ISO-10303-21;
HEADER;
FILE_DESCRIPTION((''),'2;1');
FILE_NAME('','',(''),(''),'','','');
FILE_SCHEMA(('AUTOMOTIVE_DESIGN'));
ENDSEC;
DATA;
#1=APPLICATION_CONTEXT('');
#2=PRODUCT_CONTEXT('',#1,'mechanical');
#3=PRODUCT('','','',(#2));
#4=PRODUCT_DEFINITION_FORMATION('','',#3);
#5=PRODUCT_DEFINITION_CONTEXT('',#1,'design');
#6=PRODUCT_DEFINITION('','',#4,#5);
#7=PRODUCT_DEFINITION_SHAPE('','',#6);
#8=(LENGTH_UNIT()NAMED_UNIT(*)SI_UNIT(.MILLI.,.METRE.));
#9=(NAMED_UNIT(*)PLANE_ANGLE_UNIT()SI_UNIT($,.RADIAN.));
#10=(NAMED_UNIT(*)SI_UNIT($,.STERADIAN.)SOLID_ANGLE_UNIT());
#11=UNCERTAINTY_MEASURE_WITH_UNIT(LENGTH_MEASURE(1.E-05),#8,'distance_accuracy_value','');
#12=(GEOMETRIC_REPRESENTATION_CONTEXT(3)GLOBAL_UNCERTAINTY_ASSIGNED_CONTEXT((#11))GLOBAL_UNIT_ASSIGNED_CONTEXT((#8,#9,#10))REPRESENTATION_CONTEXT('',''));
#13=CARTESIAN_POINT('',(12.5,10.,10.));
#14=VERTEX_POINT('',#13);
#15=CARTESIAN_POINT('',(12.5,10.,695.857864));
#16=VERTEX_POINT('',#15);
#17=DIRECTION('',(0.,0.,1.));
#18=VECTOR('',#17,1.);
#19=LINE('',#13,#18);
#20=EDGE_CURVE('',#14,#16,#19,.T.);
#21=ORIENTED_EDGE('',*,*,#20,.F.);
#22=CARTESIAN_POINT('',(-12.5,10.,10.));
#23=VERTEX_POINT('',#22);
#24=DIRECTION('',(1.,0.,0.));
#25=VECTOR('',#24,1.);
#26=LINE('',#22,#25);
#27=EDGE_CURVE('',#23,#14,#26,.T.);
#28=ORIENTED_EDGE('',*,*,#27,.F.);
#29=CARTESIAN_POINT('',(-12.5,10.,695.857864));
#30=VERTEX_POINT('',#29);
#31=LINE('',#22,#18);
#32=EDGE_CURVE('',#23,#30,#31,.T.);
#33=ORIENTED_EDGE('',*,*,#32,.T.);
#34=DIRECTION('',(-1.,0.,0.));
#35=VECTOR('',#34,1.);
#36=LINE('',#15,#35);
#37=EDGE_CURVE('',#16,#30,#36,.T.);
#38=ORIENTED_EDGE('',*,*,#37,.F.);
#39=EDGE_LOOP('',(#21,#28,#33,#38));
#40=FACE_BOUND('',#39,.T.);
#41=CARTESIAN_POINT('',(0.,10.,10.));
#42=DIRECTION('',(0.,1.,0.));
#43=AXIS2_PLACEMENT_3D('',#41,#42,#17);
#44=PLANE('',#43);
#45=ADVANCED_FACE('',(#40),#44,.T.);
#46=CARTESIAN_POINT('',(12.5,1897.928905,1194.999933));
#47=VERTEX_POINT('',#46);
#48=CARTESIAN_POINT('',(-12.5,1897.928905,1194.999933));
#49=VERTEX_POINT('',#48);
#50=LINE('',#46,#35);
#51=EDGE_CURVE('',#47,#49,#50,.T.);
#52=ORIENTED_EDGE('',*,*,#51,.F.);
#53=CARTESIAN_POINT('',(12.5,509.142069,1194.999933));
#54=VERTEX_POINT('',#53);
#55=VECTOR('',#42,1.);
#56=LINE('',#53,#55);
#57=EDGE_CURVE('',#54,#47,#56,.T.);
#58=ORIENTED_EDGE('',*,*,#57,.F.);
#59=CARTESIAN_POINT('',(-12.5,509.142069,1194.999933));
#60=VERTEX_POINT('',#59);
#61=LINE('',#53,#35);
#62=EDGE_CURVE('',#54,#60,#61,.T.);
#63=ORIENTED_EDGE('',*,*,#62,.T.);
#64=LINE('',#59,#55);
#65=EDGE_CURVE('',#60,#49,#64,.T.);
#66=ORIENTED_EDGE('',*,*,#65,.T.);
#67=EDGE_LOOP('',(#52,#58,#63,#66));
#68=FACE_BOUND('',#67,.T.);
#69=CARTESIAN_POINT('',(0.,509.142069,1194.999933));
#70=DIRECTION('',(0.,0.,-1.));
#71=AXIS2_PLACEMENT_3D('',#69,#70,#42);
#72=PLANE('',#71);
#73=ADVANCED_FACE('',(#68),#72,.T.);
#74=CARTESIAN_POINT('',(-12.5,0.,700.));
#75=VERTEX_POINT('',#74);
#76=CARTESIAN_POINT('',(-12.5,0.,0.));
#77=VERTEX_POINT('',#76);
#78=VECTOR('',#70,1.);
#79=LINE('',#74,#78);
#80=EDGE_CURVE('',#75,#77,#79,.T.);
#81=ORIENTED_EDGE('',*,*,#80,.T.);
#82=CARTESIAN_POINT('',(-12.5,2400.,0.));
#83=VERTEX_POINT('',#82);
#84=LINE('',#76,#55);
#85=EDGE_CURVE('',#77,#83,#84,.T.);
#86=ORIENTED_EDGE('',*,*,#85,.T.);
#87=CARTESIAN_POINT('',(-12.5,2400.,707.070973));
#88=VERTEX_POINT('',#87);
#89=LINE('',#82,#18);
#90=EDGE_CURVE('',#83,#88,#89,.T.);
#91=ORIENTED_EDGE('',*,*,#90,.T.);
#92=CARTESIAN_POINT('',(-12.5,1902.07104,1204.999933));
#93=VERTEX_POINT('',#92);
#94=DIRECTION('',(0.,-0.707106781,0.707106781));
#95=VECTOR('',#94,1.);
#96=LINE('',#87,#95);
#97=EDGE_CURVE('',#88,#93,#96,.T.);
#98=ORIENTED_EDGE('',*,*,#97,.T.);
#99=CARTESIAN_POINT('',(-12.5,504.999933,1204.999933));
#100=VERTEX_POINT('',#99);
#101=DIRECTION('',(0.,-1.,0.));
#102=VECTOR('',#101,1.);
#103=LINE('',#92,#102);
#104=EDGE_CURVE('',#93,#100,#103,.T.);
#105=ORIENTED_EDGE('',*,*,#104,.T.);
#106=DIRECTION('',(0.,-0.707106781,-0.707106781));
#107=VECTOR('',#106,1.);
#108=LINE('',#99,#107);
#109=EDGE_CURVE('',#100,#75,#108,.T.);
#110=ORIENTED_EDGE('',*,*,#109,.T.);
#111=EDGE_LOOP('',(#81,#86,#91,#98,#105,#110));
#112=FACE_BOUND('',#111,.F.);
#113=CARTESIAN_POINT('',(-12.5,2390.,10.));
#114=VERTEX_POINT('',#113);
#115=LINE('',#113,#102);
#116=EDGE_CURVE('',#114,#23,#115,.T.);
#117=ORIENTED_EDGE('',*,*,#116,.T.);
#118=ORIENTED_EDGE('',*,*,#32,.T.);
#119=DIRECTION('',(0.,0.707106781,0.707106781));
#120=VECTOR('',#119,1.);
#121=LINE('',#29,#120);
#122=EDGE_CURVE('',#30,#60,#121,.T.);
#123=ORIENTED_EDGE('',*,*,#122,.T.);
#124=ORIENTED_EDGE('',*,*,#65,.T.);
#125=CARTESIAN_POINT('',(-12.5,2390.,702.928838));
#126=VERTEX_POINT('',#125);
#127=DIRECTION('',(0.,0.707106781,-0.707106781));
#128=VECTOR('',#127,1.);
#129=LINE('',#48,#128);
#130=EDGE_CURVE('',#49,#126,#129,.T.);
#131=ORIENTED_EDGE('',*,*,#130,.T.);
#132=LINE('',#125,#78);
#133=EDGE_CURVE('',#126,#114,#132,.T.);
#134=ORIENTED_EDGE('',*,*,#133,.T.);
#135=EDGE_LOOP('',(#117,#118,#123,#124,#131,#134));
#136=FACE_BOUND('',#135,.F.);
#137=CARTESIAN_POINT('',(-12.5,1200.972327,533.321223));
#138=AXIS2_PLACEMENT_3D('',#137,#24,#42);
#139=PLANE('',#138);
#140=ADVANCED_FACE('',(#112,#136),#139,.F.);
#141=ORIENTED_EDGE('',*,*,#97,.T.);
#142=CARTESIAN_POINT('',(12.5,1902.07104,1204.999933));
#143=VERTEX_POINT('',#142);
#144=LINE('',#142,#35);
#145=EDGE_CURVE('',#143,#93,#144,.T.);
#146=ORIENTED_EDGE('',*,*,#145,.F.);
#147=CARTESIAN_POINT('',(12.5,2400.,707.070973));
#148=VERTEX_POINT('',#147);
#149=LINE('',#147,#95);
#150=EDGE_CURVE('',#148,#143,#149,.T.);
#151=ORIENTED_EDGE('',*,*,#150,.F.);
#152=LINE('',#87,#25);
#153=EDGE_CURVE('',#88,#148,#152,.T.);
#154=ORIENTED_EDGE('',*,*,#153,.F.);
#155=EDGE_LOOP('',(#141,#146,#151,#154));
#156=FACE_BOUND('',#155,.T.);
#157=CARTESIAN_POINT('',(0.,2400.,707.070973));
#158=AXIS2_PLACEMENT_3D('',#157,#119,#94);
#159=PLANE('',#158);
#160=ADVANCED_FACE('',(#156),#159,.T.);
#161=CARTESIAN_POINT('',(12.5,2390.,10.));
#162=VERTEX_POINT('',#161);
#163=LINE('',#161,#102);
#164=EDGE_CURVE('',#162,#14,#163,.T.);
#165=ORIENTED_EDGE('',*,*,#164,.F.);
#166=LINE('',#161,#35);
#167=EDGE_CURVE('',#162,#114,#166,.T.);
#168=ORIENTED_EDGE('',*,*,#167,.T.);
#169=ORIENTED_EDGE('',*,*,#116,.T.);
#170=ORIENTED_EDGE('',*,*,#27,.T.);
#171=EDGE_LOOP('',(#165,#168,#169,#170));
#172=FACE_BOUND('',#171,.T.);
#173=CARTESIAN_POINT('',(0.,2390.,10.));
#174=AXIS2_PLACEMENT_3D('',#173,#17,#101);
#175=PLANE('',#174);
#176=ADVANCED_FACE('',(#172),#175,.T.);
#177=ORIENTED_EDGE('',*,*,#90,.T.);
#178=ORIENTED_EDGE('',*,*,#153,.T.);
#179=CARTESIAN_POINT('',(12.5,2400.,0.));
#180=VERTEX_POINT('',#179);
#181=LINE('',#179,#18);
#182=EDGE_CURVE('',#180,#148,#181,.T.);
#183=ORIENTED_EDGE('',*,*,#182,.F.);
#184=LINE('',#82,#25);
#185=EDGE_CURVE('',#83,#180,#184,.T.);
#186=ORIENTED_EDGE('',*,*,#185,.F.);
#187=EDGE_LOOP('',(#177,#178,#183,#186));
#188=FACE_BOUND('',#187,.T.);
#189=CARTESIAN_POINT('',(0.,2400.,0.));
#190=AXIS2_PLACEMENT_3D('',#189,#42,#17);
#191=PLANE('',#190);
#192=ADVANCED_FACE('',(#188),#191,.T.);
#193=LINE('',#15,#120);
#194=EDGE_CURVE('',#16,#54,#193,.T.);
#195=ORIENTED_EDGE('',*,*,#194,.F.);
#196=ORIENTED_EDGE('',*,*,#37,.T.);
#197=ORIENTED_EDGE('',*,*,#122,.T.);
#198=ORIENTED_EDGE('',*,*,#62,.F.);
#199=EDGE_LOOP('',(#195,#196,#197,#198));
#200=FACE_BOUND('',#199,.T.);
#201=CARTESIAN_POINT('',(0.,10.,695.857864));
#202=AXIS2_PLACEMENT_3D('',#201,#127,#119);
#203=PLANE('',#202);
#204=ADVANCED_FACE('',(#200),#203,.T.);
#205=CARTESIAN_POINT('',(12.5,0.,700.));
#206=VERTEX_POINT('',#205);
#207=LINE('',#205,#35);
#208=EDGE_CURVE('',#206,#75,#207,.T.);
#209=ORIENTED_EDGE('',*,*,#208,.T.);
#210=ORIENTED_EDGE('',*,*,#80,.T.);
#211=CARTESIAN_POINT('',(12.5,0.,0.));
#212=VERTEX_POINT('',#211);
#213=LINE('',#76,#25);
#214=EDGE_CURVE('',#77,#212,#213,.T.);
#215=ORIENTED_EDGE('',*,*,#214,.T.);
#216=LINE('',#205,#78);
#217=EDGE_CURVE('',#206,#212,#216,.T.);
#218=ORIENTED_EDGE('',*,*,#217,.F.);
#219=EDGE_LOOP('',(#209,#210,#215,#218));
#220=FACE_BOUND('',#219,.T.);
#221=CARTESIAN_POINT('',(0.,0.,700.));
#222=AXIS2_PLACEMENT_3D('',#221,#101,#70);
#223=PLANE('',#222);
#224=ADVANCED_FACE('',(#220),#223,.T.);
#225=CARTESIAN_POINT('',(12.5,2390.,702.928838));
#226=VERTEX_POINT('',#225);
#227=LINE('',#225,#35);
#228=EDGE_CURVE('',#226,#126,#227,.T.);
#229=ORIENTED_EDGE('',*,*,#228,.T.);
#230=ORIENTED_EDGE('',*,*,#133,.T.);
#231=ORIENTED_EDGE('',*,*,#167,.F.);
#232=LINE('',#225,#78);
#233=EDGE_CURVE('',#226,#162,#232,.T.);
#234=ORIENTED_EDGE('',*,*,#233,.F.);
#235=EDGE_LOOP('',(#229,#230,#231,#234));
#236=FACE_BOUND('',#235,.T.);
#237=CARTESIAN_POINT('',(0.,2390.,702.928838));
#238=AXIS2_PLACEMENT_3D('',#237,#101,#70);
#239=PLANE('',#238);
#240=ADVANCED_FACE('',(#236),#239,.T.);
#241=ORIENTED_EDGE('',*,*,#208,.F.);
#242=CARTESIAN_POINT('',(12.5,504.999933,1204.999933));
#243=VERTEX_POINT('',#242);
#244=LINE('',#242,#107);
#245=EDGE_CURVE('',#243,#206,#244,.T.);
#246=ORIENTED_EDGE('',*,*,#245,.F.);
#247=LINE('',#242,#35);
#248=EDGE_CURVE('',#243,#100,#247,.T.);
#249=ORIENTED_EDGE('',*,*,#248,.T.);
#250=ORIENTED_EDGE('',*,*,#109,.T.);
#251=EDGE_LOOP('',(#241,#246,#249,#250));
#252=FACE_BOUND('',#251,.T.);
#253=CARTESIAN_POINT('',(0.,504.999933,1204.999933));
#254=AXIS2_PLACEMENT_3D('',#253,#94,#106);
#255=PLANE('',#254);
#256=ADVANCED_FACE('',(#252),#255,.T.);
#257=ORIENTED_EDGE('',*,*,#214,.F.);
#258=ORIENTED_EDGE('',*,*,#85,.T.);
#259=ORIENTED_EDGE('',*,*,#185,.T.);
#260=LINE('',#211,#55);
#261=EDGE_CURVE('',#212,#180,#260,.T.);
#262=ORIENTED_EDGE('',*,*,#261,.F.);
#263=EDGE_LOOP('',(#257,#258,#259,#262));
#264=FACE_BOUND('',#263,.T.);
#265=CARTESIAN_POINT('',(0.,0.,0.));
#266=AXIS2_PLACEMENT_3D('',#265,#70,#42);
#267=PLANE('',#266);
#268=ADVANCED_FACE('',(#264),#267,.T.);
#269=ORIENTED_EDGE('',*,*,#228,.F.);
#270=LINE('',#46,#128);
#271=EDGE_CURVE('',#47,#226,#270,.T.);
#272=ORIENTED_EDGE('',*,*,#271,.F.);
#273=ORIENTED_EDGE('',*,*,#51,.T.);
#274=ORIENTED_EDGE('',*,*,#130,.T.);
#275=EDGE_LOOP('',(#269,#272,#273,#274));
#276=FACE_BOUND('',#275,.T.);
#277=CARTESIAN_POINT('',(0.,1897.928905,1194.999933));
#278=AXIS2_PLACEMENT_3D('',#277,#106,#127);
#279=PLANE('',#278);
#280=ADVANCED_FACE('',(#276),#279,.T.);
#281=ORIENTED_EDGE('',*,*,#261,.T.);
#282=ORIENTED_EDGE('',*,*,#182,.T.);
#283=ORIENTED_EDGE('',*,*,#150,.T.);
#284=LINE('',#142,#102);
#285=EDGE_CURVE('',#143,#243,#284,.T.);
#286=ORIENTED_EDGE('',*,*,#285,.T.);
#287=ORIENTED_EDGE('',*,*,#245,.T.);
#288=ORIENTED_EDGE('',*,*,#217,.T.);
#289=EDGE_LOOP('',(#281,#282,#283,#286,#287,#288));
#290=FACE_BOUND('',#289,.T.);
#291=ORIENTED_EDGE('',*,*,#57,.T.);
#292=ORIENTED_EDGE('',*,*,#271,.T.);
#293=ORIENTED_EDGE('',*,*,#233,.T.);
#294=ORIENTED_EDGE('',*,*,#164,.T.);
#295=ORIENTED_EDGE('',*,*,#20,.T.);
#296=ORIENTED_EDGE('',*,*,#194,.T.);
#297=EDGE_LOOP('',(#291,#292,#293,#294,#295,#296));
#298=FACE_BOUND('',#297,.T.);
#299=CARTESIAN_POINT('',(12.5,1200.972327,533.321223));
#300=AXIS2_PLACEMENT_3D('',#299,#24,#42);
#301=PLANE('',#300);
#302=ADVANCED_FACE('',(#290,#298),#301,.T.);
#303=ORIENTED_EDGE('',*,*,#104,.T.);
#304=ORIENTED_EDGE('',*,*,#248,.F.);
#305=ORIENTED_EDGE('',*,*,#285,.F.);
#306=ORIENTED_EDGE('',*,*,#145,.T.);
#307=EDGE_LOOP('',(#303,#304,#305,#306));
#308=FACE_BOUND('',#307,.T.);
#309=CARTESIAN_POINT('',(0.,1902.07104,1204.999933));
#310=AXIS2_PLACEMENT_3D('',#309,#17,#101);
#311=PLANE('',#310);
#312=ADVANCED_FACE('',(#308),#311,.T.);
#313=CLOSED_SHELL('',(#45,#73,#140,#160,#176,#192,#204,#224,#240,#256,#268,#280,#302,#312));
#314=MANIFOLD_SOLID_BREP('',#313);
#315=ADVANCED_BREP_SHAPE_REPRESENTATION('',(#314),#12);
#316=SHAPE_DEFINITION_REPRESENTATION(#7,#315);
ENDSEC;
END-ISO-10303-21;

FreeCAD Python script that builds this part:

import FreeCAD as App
import Part
import Sketcher
from FreeCAD import Vector
Q = App.Units.Quantity


def add_polygon(sketch, points):
    """Adds a closed chain of lines whose ends are joined by coincident constraints."""
    first, n = sketch.GeometryCount, len(points)
    for a, b in zip(points, points[1:] + points[:1]):
        sketch.addGeometry(Part.LineSegment(App.Vector(*a, 0), App.Vector(*b, 0)), False)
    for i in range(n):
        sketch.addConstraint(Sketcher.Constraint("Coincident", first + i, 2, first + (i + 1) % n, 1))

doc = App.newDocument("Part")
body = doc.addObject("PartDesign::Body", "Body")

# Sketch on YZ plane
sketch1 = body.newObject("Sketcher::SketchObject", "Sketch")
sketch1.AttachmentSupport = (doc.getObject("YZ_Plane"), [""])
sketch1.MapMode = "FlatFace"
add_polygon(sketch1, [(0, 700), (0, 0), (2400, 0), (2400, 707), (1902, 1205), (505, 1205)])  # lines 0-5
add_polygon(sketch1, [(2390, 10), (10, 10), (10, 696), (509, 1195), (1898, 1195), (2390, 703)])  # lines 6-11
sketch1.addConstraint([
    Sketcher.Constraint("Vertical", 0),
    Sketcher.Constraint("Horizontal", 1),
    Sketcher.Constraint("Vertical", 2),
    Sketcher.Constraint("Horizontal", 4),
    Sketcher.Constraint("Horizontal", 6),
    Sketcher.Constraint("Vertical", 7),
    Sketcher.Constraint("Horizontal", 9),
    Sketcher.Constraint("Vertical", 11),
    Sketcher.Constraint("Coincident", 0, 2, -1, 1),
    Sketcher.Constraint("Perpendicular", 3, 5),
    Sketcher.Constraint("Parallel", 5, 8),
    Sketcher.Constraint("Perpendicular", 8, 10),
    Sketcher.Constraint("DistanceX", 1, 1, 1, 2, Q("2400 mm")),
    Sketcher.Constraint("DistanceX", 6, 2, 6, 1, Q("2380 mm")),
    Sketcher.Constraint("DistanceY", 0, 2, 0, 1, Q("700 mm")),
    Sketcher.Constraint("Angle", 3, Q("135 deg")),
    Sketcher.Constraint("DistanceX", -1, 1, 6, 2, Q("10 mm")),
    Sketcher.Constraint("DistanceY", -1, 1, 6, 2, Q("10 mm")),
    Sketcher.Constraint("DistanceY", 8, 2, 4, 2, Q("10 mm")),
    Sketcher.Constraint("DistanceY", 11, 2, 11, 1, Q("692.928838 mm")),
    Sketcher.Constraint("Distance", 3, Q("704.177888 mm")),
    Sketcher.Constraint("DistanceX", 4, 2, 4, 1, Q("1397.071107 mm")),
    Sketcher.Constraint("DistanceX", 9, 1, 9, 2, Q("1388.786836 mm")),
])
pad1 = body.newObject("PartDesign::Pad", "Pad")
pad1.Profile = sketch1
pad1.Length = 25
pad1.Midplane = True

doc.recompute()
